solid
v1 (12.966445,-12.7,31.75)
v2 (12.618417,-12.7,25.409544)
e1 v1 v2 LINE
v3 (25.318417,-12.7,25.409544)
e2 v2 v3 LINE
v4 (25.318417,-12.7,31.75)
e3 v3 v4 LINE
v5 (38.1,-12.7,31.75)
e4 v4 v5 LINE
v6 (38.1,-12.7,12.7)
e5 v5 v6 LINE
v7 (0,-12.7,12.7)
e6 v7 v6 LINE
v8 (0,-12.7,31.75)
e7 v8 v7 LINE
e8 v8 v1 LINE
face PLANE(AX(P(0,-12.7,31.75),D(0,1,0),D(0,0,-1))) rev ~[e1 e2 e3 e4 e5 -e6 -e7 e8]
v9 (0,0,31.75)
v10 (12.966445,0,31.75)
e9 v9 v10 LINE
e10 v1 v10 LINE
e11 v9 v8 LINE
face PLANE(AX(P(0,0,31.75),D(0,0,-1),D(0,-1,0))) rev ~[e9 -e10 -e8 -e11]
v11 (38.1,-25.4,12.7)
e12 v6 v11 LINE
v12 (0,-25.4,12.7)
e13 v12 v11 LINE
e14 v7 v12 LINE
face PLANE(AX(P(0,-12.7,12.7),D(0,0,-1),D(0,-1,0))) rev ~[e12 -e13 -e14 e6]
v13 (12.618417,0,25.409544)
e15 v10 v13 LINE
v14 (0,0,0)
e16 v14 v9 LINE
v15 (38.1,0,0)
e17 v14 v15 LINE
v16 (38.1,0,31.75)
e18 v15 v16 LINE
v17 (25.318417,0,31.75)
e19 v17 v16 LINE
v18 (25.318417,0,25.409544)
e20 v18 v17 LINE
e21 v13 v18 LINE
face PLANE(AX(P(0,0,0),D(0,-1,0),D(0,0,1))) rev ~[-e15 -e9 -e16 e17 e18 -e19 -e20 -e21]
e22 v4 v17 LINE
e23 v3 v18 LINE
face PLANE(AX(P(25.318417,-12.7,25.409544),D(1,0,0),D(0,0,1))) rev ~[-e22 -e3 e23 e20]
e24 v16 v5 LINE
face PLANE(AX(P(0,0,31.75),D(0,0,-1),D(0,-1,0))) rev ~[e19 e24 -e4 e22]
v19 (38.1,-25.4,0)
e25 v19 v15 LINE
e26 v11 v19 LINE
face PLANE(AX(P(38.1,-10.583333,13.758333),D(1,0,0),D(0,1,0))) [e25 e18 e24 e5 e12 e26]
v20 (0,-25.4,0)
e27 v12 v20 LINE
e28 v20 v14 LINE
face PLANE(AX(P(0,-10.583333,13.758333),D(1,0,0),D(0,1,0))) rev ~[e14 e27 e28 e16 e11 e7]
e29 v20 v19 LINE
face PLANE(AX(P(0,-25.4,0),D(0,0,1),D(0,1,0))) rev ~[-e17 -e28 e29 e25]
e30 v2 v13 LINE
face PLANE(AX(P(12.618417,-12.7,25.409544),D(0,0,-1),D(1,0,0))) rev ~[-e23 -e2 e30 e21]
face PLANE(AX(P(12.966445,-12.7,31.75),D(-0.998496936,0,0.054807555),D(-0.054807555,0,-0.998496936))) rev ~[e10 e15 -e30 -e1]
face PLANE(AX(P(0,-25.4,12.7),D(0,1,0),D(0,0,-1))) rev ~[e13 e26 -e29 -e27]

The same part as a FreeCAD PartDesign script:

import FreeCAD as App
import Part
import Sketcher
Q = App.Units.Quantity


def add_polygon(sketch, points):
    """Adds a closed chain of lines whose ends are joined by coincident constraints."""
    first, n = sketch.GeometryCount, len(points)
    for a, b in zip(points, points[1:] + points[:1]):
        sketch.addGeometry(Part.LineSegment(App.Vector(*a, 0), App.Vector(*b, 0)), False)
    for i in range(n):
        sketch.addConstraint(Sketcher.Constraint("Coincident", first + i, 2, first + (i + 1) % n, 1))

doc = App.newDocument("Part")
body = doc.addObject("PartDesign::Body", "Body")

# Sketch on YZ plane
sketch1 = body.newObject("Sketcher::SketchObject", "Sketch")
sketch1.AttachmentSupport = (doc.getObject("YZ_Plane"), [""])
sketch1.MapMode = "FlatFace"
add_polygon(sketch1, [(0, 0), (0, 32), (-13, 32), (-13, 13), (-25, 13), (-25, 0)])  # lines 0-5
sketch1.addConstraint([
    Sketcher.Constraint("Vertical", 0),
    Sketcher.Constraint("Horizontal", 1),
    Sketcher.Constraint("Vertical", 2),
    Sketcher.Constraint("Horizontal", 3),
    Sketcher.Constraint("Vertical", 4),
    Sketcher.Constraint("Horizontal", 5),
    Sketcher.Constraint("Coincident", 5, 2, -1, 1),
    Sketcher.Constraint("Equal", 1, 3),
    Sketcher.Constraint("Equal", 3, 4),
    Sketcher.Constraint("DistanceX", 5, 1, 5, 2, Q("1 in")),
    Sketcher.Constraint("DistanceY", 0, 1, 0, 2, Q("1.25 in")),
])
pad1 = body.newObject("PartDesign::Pad", "Pad")
pad1.Profile = sketch1
pad1.Length = Q("1.5 in")

# Sketch on XZ plane
sketch2 = body.newObject("Sketcher::SketchObject", "Sketch001")
sketch2.AttachmentSupport = (doc.getObject("XZ_Plane"), [""])
sketch2.MapMode = "FlatFace"
sketch2.AttachmentOffset = App.Placement(App.Vector(0, 0, 0.5 * 25.4), App.Rotation())
add_polygon(sketch2, [(25, 32), (13, 32), (13, 25), (25, 25)])  # lines 0-3
sketch2.addConstraint([
    Sketcher.Constraint("Horizontal", 0),
    Sketcher.Constraint("Horizontal", 2),
    Sketcher.Constraint("Vertical", 3),
    Sketcher.Constraint("DistanceX", 2, 1, 2, 2, Q("0.5 in")),
    Sketcher.Constraint("Distance", 1, Q("0.25 in")),
    Sketcher.Constraint("DistanceY", -1, 1, 0, 2, Q("1.25 in")),
    Sketcher.Constraint("DistanceX", 0, 2, 0, 1, Q("12.351972 mm")),
    Sketcher.Constraint("DistanceX", -1, 1, 0, 2, Q("12.966445 mm")),
])
pocket1 = body.newObject("PartDesign::Pocket", "Pocket")
pocket1.Profile = sketch2
pocket1.Type = "ThroughAll"

doc.recompute()
